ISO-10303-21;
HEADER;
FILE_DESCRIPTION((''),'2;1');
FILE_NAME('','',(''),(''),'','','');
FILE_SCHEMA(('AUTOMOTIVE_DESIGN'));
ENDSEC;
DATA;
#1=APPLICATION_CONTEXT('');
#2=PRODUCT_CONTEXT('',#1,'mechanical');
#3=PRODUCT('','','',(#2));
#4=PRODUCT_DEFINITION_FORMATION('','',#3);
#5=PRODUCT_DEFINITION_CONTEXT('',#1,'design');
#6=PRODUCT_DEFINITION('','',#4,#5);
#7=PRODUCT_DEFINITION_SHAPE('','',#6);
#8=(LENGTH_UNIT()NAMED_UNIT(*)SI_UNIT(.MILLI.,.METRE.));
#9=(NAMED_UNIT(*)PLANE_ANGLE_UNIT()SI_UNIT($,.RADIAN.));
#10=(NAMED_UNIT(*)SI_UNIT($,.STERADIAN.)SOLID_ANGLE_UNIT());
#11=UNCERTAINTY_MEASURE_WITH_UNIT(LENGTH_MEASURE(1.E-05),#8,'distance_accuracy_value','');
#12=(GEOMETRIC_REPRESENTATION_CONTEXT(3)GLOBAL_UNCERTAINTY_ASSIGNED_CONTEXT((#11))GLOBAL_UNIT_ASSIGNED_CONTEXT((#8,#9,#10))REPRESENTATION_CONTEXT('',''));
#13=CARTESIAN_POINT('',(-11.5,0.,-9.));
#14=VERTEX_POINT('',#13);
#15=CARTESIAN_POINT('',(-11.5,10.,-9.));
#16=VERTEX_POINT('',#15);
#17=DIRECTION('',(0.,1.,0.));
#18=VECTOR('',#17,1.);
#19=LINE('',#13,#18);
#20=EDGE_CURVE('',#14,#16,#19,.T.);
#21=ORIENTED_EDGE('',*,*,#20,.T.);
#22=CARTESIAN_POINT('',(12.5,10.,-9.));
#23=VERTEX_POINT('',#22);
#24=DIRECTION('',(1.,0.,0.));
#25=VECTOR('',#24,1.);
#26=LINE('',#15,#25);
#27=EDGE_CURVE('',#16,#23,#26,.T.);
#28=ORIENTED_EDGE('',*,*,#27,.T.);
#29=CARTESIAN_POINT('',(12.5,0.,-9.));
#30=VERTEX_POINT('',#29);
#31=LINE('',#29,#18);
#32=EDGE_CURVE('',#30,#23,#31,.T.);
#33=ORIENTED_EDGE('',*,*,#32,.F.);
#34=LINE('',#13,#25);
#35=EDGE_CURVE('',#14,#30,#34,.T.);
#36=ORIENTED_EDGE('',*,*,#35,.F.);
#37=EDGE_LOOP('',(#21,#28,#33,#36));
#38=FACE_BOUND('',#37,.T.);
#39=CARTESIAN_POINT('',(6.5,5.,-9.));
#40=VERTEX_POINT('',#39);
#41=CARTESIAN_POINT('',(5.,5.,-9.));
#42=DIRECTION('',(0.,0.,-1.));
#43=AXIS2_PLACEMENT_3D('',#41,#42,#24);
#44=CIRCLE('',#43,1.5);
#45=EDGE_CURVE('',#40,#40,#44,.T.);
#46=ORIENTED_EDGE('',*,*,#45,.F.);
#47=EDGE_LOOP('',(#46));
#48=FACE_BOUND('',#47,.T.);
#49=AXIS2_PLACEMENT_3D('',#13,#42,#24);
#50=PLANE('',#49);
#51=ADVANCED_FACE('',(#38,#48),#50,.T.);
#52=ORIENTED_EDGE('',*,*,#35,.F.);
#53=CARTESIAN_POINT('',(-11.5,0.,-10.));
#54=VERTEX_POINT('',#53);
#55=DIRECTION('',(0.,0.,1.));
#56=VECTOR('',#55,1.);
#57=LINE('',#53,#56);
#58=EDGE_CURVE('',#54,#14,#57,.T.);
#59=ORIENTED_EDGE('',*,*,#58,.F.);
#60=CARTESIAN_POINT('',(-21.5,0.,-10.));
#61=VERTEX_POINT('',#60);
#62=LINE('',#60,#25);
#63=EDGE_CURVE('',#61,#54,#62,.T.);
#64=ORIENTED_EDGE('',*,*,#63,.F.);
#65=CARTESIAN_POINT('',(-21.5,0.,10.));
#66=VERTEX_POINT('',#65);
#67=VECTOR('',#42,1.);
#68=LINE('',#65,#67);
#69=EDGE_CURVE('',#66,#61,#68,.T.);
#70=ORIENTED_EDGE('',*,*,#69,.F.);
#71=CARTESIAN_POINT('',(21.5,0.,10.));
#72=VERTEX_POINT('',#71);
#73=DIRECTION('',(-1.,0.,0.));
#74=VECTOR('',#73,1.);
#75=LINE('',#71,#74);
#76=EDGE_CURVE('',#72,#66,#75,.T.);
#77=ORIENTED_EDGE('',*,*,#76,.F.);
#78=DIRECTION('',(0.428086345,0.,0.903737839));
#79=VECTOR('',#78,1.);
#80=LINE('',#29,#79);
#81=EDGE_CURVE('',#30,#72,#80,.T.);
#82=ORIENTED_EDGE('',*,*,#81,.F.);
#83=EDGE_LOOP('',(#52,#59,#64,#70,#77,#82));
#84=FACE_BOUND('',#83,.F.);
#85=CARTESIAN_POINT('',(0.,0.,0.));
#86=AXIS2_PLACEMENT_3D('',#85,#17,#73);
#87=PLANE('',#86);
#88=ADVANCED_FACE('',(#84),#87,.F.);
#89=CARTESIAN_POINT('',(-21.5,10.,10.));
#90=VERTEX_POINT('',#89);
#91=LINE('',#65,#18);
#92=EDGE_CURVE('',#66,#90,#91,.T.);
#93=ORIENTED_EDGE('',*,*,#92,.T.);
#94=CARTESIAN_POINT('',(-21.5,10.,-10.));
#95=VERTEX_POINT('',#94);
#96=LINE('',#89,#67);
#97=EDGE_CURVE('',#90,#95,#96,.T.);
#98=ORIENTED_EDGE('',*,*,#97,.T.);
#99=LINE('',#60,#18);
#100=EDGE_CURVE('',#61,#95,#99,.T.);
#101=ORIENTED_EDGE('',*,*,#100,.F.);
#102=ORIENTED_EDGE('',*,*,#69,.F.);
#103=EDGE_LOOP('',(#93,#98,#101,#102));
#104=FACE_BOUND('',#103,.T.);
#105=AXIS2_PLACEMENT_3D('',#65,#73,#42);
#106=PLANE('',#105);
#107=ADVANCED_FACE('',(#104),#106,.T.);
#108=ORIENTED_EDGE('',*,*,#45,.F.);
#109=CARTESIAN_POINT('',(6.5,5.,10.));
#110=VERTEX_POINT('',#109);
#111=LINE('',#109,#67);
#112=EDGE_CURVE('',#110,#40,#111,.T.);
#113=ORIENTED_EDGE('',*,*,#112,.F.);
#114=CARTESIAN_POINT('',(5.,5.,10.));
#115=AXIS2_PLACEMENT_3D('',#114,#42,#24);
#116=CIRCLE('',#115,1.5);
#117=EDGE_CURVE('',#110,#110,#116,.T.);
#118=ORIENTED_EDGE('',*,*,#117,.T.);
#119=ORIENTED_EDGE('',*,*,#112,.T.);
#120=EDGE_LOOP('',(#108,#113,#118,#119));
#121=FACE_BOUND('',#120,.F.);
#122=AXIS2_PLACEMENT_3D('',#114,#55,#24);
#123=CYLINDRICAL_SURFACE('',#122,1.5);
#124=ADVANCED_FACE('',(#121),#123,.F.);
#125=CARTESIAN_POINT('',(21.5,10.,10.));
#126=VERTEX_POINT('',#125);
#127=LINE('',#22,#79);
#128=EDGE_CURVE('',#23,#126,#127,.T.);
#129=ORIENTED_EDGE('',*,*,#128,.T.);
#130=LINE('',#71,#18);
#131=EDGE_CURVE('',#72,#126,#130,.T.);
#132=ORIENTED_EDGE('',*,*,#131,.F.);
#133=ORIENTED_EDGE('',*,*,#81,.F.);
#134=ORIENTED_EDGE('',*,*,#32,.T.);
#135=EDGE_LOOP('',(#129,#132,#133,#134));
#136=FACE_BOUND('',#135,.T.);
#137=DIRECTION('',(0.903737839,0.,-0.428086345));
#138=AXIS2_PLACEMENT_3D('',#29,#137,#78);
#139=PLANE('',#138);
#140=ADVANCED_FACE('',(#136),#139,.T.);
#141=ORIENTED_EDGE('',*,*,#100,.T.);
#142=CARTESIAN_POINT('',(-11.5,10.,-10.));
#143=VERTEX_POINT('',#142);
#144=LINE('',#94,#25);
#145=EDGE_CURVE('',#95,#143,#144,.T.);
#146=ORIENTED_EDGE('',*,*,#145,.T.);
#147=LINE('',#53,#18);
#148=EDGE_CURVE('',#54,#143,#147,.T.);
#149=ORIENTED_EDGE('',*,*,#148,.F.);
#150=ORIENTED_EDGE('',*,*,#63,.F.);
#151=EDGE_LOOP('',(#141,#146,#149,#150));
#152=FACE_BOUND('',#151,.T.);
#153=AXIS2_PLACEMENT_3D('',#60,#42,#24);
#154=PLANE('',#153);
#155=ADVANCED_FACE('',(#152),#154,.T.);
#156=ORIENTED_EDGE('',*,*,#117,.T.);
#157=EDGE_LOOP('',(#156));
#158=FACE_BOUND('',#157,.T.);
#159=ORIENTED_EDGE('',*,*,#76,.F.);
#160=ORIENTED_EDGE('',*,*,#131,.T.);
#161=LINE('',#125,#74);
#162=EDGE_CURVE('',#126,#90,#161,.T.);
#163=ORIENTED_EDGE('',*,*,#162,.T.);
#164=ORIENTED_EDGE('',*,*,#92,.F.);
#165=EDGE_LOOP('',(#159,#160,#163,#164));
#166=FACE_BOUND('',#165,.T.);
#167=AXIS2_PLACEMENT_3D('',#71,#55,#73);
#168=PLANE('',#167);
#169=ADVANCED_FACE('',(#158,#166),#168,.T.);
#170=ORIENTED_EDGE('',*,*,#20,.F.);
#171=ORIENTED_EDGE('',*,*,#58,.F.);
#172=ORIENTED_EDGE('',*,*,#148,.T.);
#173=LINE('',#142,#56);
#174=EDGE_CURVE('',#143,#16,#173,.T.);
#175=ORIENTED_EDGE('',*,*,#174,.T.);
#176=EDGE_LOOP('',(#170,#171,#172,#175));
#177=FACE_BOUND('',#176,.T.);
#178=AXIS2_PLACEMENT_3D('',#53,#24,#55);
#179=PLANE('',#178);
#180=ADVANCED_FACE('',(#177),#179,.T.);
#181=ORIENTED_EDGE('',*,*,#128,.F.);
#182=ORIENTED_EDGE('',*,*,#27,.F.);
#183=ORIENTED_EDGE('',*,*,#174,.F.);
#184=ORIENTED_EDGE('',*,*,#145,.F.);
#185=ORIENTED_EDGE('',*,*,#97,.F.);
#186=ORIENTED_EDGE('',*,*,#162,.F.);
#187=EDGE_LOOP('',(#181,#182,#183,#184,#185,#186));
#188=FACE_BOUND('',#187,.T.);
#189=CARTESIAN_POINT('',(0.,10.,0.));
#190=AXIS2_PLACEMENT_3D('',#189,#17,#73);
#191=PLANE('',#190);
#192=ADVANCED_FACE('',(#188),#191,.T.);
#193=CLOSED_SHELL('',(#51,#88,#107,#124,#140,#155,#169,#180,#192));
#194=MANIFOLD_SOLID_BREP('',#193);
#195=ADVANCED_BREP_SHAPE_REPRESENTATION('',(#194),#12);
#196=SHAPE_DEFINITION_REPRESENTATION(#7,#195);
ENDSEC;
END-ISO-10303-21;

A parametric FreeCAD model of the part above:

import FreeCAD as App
import Part
import Sketcher

V = App.Vector
Q = App.Units.Quantity

doc = App.newDocument("Part")
body = doc.addObject("PartDesign::Body", "Body")

# Sketch on XZ plane
sketch1 = doc.addObject("Sketcher::SketchObject", "Sketch")
body.addObject(sketch1)
sketch1.AttachmentSupport = (doc.XZ_Plane, [""])
sketch1.MapMode = "FlatFace"
sketch1.addGeometry(Part.LineSegment(V(-21.5, 10, 0), V(21.5, 10, 0)), False)
sketch1.addGeometry(Part.LineSegment(V(21.5, 10, 0), V(12.5, -9, 0)), False)
sketch1.addGeometry(Part.LineSegment(V(12.5, -9, 0), V(-11.5, -9, 0)), False)
sketch1.addGeometry(Part.LineSegment(V(-11.5, -9, 0), V(-11.5, -10, 0)), False)
sketch1.addGeometry(Part.LineSegment(V(-11.5, -10, 0), V(-21.5, -10, 0)), False)
sketch1.addGeometry(Part.LineSegment(V(-21.5, -10, 0), V(-21.5, 10, 0)), False)
sketch1.addConstraint(Sketcher.Constraint("Coincident", 0, 2, 1, 1))
sketch1.addConstraint(Sketcher.Constraint("Coincident", 1, 2, 2, 1))
sketch1.addConstraint(Sketcher.Constraint("Coincident", 2, 2, 3, 1))
sketch1.addConstraint(Sketcher.Constraint("Coincident", 3, 2, 4, 1))
sketch1.addConstraint(Sketcher.Constraint("Coincident", 4, 2, 5, 1))
sketch1.addConstraint(Sketcher.Constraint("Coincident", 5, 2, 0, 1))
sketch1.addConstraint(Sketcher.Constraint("Horizontal", 0))
sketch1.addConstraint(Sketcher.Constraint("Horizontal", 2))
sketch1.addConstraint(Sketcher.Constraint("Vertical", 3))
sketch1.addConstraint(Sketcher.Constraint("Horizontal", 4))
sketch1.addConstraint(Sketcher.Constraint("Vertical", 5))
sketch1.addConstraint(Sketcher.Constraint("Symmetric", 0, 2, 4, 2, -1, 1))
sketch1.addConstraint(Sketcher.Constraint("DistanceX", 0, 1, 0, 2, Q("43 mm")))
sketch1.addConstraint(Sketcher.Constraint("DistanceX", 2, 2, 2, 1, Q("24 mm")))
sketch1.addConstraint(Sketcher.Constraint("DistanceX", 4, 2, 4, 1, Q("10 mm")))
sketch1.addConstraint(Sketcher.Constraint("DistanceY", 3, 2, 3, 1, Q("1 mm")))
sketch1.addConstraint(Sketcher.Constraint("DistanceY", -1, 1, 0, 2, Q("10 mm")))
pad1 = doc.addObject("PartDesign::Pad", "Pad")
body.addObject(pad1)
pad1.Profile = sketch1
pad1.Length = 10
pad1.Reversed = True

# Sketch on XY plane
sketch2 = doc.addObject("Sketcher::SketchObject", "Sketch001")
body.addObject(sketch2)
sketch2.AttachmentSupport = (doc.XY_Plane, [""])
sketch2.MapMode = "FlatFace"
sketch2.AttachmentOffset = App.Placement(V(0, 0, 10), App.Rotation())
sketch2.addGeometry(Part.Circle(V(5, 5, 0), V(0, 0, 1), 1.5), False)
sketch2.addConstraint(Sketcher.Constraint("Diameter", 0, Q("3 mm")))
sketch2.addConstraint(Sketcher.Constraint("DistanceX", -1, 1, 0, 3, Q("5 mm")))
sketch2.addConstraint(Sketcher.Constraint("DistanceY", -1, 1, 0, 3, Q("5 mm")))
pocket1 = doc.addObject("PartDesign::Pocket", "Pocket")
body.addObject(pocket1)
pocket1.Profile = sketch2
pocket1.Length = 19

doc.recompute()
